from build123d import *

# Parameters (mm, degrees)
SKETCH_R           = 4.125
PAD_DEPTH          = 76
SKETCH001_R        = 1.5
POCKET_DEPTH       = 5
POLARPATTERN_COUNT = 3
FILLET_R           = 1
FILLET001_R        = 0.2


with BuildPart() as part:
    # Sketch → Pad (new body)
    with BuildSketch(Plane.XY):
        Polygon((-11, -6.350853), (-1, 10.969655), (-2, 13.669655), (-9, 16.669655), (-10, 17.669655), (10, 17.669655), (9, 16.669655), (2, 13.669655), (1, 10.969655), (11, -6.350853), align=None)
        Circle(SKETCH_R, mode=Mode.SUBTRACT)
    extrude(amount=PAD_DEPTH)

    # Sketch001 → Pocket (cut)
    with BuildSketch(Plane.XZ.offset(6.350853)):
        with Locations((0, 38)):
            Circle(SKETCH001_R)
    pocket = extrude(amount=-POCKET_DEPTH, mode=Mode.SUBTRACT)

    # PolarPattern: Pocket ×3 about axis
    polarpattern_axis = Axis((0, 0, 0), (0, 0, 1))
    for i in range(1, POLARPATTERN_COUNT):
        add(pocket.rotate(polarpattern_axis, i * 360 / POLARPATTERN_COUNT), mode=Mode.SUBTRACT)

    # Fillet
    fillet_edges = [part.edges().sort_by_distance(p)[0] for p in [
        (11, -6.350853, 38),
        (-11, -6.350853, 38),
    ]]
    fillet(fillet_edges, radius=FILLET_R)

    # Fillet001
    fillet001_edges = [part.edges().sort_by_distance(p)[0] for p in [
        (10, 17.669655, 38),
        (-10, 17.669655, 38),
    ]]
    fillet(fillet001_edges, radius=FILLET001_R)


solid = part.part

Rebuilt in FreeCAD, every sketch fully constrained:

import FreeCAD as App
import Part
import Sketcher
from FreeCAD import Vector
Q = App.Units.Quantity


def edges_at(feature, points):
    """Names of the edges that pass closest to the given points."""
    edges = feature.Shape.Edges
    near = lambda p: min(range(len(edges)), key=lambda i: edges[i].distToShape(Part.Vertex(*p))[0])
    return sorted({f"Edge{near(p) + 1}" for p in points})

doc = App.newDocument("Part")
body = doc.addObject("PartDesign::Body", "Body")

sketch1 = body.newObject("Sketcher::SketchObject", "Sketch")
sketch1.AttachmentSupport = (doc.getObject("XY_Plane"), [""])
sketch1.MapMode = "FlatFace"
sketch1.addGeometry([
    Part.LineSegment(Vector(-1, 11, 0), Vector(-11, -6.4, 0)),
    Part.LineSegment(Vector(-11, -6.4, 0), Vector(11, -6.4, 0)),
    Part.LineSegment(Vector(11, -6.4, 0), Vector(1, 11, 0)),
    Part.LineSegment(Vector(1, 11, 0), Vector(2, 13.7, 0)),
    Part.LineSegment(Vector(2, 13.7, 0), Vector(9, 16.7, 0)),
    Part.LineSegment(Vector(9, 16.7, 0), Vector(10, 17.7, 0)),
    Part.LineSegment(Vector(10, 17.7, 0), Vector(-10, 17.7, 0)),
    Part.LineSegment(Vector(-10, 17.7, 0), Vector(-9, 16.7, 0)),
    Part.LineSegment(Vector(-9, 16.7, 0), Vector(-2, 13.7, 0)),
    Part.LineSegment(Vector(-2, 13.7, 0), Vector(-1, 11, 0)),
    Part.Circle(Vector(0, 0, 0), Vector(0, 0, 1), 4.1),
], False)
sketch1.addConstraint([
    Sketcher.Constraint("Coincident", 0, 2, 1, 1),
    Sketcher.Constraint("Coincident", 1, 2, 2, 1),
    Sketcher.Constraint("Coincident", 2, 2, 3, 1),
    Sketcher.Constraint("Coincident", 3, 2, 4, 1),
    Sketcher.Constraint("Coincident", 4, 2, 5, 1),
    Sketcher.Constraint("Coincident", 5, 2, 6, 1),
    Sketcher.Constraint("Coincident", 6, 2, 7, 1),
    Sketcher.Constraint("Coincident", 7, 2, 8, 1),
    Sketcher.Constraint("Coincident", 8, 2, 9, 1),
    Sketcher.Constraint("Coincident", 9, 2, 0, 1),
    Sketcher.Constraint("Horizontal", 1),
    Sketcher.Constraint("Horizontal", 6),
    Sketcher.Constraint("Coincident", 10, 3, -1, 1),
    Sketcher.Constraint("Symmetric", 4, 2, 7, 2, -2),
    Sketcher.Constraint("Symmetric", 3, 2, 8, 2, -2),
    Sketcher.Constraint("Symmetric", 2, 2, 9, 2, -2),
    Sketcher.Constraint("Perpendicular", 5, 7),
    Sketcher.Constraint("Equal", 0, 2),
    Sketcher.Constraint("Equal", 5, 7),
    Sketcher.Constraint("Diameter", 10, Q("8.25 mm")),
    Sketcher.Constraint("DistanceX", 1, 1, 1, 2, Q("22 mm")),
    Sketcher.Constraint("DistanceX", 6, 2, 6, 1, Q("20 mm")),
    Sketcher.Constraint("Angle", 0, Q("-120 deg")),
    Sketcher.Constraint("Distance", 0, Q("20 mm")),
    Sketcher.Constraint("DistanceX", -1, 1, 3, 2, Q("2 mm")),
    Sketcher.Constraint("DistanceX", -1, 1, 4, 2, Q("9 mm")),
    Sketcher.Constraint("DistanceY", 3, 2, 4, 2, Q("3 mm")),
    Sketcher.Constraint("DistanceY", 2, 2, 3, 2, Q("2.7 mm")),
    Sketcher.Constraint("DistanceY", 0, 2, -1, 1, Q("6.350853 mm")),
])
pad1 = body.newObject("PartDesign::Pad", "Pad")
pad1.Profile = sketch1
pad1.Length = 76

sketch2 = body.newObject("Sketcher::SketchObject", "Sketch001")
sketch2.AttachmentSupport = (doc.getObject("XZ_Plane"), [""])
sketch2.MapMode = "FlatFace"
sketch2.AttachmentOffset = App.Placement(Vector(0, 0, 6.350853), App.Rotation())
sketch2.addGeometry(Part.Circle(Vector(0, 38, 0), Vector(0, 0, 1), 1.5), False)
sketch2.addConstraint([
    Sketcher.Constraint("PointOnObject", 0, 3, -2),
    Sketcher.Constraint("Diameter", 0, Q("3 mm")),
    Sketcher.Constraint("DistanceY", -1, 1, 0, 3, Q("38 mm")),
])
pocket1 = body.newObject("PartDesign::Pocket", "Pocket")
pocket1.Profile = sketch2
pocket1.Length = 5
doc.recompute()

polarpattern = body.newObject("PartDesign::PolarPattern", "PolarPattern")
polarpattern.Originals = [pocket1]
polarpattern.Axis = (doc.getObject("Z_Axis"), [""])
polarpattern.Angle = 360
polarpattern.Occurrences = 3
body.Tip = polarpattern
doc.recompute()

fillet = body.newObject("PartDesign::Fillet", "Fillet")
fillet.Base = (polarpattern, edges_at(polarpattern, [(11, -6.351, 38), (-11, -6.351, 38)]))
fillet.Radius = 1
doc.recompute()

fillet2 = body.newObject("PartDesign::Fillet", "Fillet001")
fillet2.Base = (fillet, edges_at(fillet, [(10, 17.67, 38), (-10, 17.67, 38)]))
fillet2.Radius = 0.2

doc.recompute()
